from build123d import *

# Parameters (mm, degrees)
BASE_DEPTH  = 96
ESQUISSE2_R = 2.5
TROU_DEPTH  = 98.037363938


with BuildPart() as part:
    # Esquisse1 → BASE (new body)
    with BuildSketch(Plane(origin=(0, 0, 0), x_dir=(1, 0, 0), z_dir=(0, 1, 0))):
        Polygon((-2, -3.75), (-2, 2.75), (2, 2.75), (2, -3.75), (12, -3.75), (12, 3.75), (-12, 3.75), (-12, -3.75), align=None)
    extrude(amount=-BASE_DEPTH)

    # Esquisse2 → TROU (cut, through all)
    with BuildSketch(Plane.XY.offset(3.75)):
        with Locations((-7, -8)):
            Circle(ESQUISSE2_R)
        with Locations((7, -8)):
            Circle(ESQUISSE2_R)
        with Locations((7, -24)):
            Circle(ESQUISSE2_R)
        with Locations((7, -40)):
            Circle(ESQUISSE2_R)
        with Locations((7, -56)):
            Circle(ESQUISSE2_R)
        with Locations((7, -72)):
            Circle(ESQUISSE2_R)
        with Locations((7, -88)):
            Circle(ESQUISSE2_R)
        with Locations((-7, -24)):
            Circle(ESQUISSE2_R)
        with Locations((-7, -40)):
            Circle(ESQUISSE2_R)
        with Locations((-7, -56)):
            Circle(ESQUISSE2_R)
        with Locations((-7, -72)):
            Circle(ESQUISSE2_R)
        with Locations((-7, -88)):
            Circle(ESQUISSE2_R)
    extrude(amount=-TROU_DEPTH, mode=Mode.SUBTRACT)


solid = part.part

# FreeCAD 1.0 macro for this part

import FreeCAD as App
import Part
import Sketcher

V = App.Vector

doc = App.newDocument("Part")
body = doc.addObject("PartDesign::Body", "Body")

sketch1 = body.newObject("Sketcher::SketchObject", "Sketch")
sketch1.AttachmentSupport = (doc.getObject("XZ_Plane"), [""])
sketch1.MapMode = "FlatFace"
sketch1.addGeometry([
    Part.LineSegment(V(-2, 3.8, 0), V(-2, -2.8, 0)),
    Part.LineSegment(V(-2, -2.8, 0), V(2, -2.8, 0)),
    Part.LineSegment(V(2, -2.8, 0), V(2, 3.8, 0)),
    Part.LineSegment(V(2, 3.8, 0), V(12, 3.8, 0)),
    Part.LineSegment(V(12, 3.8, 0), V(12, -3.8, 0)),
    Part.LineSegment(V(12, -3.8, 0), V(-12, -3.8, 0)),
    Part.LineSegment(V(-12, -3.8, 0), V(-12, 3.8, 0)),
    Part.LineSegment(V(-12, 3.8, 0), V(-2, 3.8, 0)),
], False)
sketch1.addConstraint([
    Sketcher.Constraint("Coincident", 0, 2, 1, 1),
    Sketcher.Constraint("Coincident", 1, 2, 2, 1),
    Sketcher.Constraint("Coincident", 2, 2, 3, 1),
    Sketcher.Constraint("Coincident", 3, 2, 4, 1),
    Sketcher.Constraint("Coincident", 4, 2, 5, 1),
    Sketcher.Constraint("Coincident", 5, 2, 6, 1),
    Sketcher.Constraint("Coincident", 6, 2, 7, 1),
    Sketcher.Constraint("Coincident", 7, 2, 0, 1),
    Sketcher.Constraint("Vertical", 0),
    Sketcher.Constraint("Horizontal", 1),
    Sketcher.Constraint("Vertical", 2),
    Sketcher.Constraint("Horizontal", 3),
    Sketcher.Constraint("Vertical", 4),
    Sketcher.Constraint("Horizontal", 5),
    Sketcher.Constraint("Vertical", 6),
    Sketcher.Constraint("Horizontal", 7),
    Sketcher.Constraint("Symmetric", 3, 2, 5, 2, -1, 1),
    Sketcher.Constraint("Symmetric", 2, 2, 7, 2, -2),
    Sketcher.Constraint("DistanceX", 1, 1, 1, 2, 4.0),
    Sketcher.Constraint("DistanceX", 3, 1, 3, 2, 10.0),
    Sketcher.Constraint("DistanceY", 0, 2, 0, 1, 6.5),
    Sketcher.Constraint("DistanceY", 4, 2, 4, 1, 7.5),
])
pad1 = body.newObject("PartDesign::Pad", "Pad")
pad1.Profile = sketch1
pad1.Length = 96

sketch2 = body.newObject("Sketcher::SketchObject", "Sketch001")
sketch2.AttachmentSupport = (doc.getObject("XY_Plane"), [""])
sketch2.MapMode = "FlatFace"
sketch2.AttachmentOffset = App.Placement(V(0, 0, 3.75), App.Rotation())
sketch2.addGeometry([
    Part.Circle(V(-7, -8, 0), V(0, 0, 1), 2.5),
    Part.Circle(V(7, -8, 0), V(0, 0, 1), 2.5),
    Part.Circle(V(7, -24, 0), V(0, 0, 1), 2.5),
    Part.Circle(V(7, -40, 0), V(0, 0, 1), 2.5),
    Part.Circle(V(7, -56, 0), V(0, 0, 1), 2.5),
    Part.Circle(V(7, -72, 0), V(0, 0, 1), 2.5),
    Part.Circle(V(7, -88, 0), V(0, 0, 1), 2.5),
    Part.Circle(V(-7, -24, 0), V(0, 0, 1), 2.5),
    Part.Circle(V(-7, -40, 0), V(0, 0, 1), 2.5),
    Part.Circle(V(-7, -56, 0), V(0, 0, 1), 2.5),
    Part.Circle(V(-7, -72, 0), V(0, 0, 1), 2.5),
    Part.Circle(V(-7, -88, 0), V(0, 0, 1), 2.5),
], False)
sketch2.addConstraint([
    Sketcher.Constraint("Equal", 0, 1),
    Sketcher.Constraint("Equal", 1, 2),
    Sketcher.Constraint("Equal", 2, 3),
    Sketcher.Constraint("Equal", 3, 4),
    Sketcher.Constraint("Equal", 4, 5),
    Sketcher.Constraint("Equal", 5, 6),
    Sketcher.Constraint("Equal", 6, 7),
    Sketcher.Constraint("Equal", 7, 8),
    Sketcher.Constraint("Equal", 8, 9),
    Sketcher.Constraint("Equal", 9, 10),
    Sketcher.Constraint("Equal", 10, 11),
    Sketcher.Constraint("Symmetric", 0, 3, 1, 3, -2),
    Sketcher.Constraint("Symmetric", 2, 3, 7, 3, -2),
    Sketcher.Constraint("Symmetric", 3, 3, 8, 3, -2),
    Sketcher.Constraint("Symmetric", 4, 3, 9, 3, -2),
    Sketcher.Constraint("Symmetric", 5, 3, 10, 3, -2),
    Sketcher.Constraint("Symmetric", 6, 3, 11, 3, -2),
    Sketcher.Constraint("Vertical", 1, 3, 2, 3),
    Sketcher.Constraint("Vertical", 2, 3, 3, 3),
    Sketcher.Constraint("Vertical", 3, 3, 4, 3),
    Sketcher.Constraint("Vertical", 4, 3, 5, 3),
    Sketcher.Constraint("Vertical", 5, 3, 6, 3),
    Sketcher.Constraint("Diameter", 0, 5.0),
    Sketcher.Constraint("DistanceX", 0, 3, -1, 1, 7.0),
    Sketcher.Constraint("DistanceY", 0, 3, -1, 1, 8.0),
    Sketcher.Constraint("DistanceY", 2, 3, -1, 1, 24.0),
    Sketcher.Constraint("DistanceY", 3, 3, -1, 1, 40.0),
    Sketcher.Constraint("DistanceY", 4, 3, -1, 1, 56.0),
    Sketcher.Constraint("DistanceY", 5, 3, -1, 1, 72.0),
    Sketcher.Constraint("DistanceY", 6, 3, -1, 1, 88.0),
])
pocket1 = body.newObject("PartDesign::Pocket", "Pocket")
pocket1.Profile = sketch2
pocket1.Type = "ThroughAll"

doc.recompute()
